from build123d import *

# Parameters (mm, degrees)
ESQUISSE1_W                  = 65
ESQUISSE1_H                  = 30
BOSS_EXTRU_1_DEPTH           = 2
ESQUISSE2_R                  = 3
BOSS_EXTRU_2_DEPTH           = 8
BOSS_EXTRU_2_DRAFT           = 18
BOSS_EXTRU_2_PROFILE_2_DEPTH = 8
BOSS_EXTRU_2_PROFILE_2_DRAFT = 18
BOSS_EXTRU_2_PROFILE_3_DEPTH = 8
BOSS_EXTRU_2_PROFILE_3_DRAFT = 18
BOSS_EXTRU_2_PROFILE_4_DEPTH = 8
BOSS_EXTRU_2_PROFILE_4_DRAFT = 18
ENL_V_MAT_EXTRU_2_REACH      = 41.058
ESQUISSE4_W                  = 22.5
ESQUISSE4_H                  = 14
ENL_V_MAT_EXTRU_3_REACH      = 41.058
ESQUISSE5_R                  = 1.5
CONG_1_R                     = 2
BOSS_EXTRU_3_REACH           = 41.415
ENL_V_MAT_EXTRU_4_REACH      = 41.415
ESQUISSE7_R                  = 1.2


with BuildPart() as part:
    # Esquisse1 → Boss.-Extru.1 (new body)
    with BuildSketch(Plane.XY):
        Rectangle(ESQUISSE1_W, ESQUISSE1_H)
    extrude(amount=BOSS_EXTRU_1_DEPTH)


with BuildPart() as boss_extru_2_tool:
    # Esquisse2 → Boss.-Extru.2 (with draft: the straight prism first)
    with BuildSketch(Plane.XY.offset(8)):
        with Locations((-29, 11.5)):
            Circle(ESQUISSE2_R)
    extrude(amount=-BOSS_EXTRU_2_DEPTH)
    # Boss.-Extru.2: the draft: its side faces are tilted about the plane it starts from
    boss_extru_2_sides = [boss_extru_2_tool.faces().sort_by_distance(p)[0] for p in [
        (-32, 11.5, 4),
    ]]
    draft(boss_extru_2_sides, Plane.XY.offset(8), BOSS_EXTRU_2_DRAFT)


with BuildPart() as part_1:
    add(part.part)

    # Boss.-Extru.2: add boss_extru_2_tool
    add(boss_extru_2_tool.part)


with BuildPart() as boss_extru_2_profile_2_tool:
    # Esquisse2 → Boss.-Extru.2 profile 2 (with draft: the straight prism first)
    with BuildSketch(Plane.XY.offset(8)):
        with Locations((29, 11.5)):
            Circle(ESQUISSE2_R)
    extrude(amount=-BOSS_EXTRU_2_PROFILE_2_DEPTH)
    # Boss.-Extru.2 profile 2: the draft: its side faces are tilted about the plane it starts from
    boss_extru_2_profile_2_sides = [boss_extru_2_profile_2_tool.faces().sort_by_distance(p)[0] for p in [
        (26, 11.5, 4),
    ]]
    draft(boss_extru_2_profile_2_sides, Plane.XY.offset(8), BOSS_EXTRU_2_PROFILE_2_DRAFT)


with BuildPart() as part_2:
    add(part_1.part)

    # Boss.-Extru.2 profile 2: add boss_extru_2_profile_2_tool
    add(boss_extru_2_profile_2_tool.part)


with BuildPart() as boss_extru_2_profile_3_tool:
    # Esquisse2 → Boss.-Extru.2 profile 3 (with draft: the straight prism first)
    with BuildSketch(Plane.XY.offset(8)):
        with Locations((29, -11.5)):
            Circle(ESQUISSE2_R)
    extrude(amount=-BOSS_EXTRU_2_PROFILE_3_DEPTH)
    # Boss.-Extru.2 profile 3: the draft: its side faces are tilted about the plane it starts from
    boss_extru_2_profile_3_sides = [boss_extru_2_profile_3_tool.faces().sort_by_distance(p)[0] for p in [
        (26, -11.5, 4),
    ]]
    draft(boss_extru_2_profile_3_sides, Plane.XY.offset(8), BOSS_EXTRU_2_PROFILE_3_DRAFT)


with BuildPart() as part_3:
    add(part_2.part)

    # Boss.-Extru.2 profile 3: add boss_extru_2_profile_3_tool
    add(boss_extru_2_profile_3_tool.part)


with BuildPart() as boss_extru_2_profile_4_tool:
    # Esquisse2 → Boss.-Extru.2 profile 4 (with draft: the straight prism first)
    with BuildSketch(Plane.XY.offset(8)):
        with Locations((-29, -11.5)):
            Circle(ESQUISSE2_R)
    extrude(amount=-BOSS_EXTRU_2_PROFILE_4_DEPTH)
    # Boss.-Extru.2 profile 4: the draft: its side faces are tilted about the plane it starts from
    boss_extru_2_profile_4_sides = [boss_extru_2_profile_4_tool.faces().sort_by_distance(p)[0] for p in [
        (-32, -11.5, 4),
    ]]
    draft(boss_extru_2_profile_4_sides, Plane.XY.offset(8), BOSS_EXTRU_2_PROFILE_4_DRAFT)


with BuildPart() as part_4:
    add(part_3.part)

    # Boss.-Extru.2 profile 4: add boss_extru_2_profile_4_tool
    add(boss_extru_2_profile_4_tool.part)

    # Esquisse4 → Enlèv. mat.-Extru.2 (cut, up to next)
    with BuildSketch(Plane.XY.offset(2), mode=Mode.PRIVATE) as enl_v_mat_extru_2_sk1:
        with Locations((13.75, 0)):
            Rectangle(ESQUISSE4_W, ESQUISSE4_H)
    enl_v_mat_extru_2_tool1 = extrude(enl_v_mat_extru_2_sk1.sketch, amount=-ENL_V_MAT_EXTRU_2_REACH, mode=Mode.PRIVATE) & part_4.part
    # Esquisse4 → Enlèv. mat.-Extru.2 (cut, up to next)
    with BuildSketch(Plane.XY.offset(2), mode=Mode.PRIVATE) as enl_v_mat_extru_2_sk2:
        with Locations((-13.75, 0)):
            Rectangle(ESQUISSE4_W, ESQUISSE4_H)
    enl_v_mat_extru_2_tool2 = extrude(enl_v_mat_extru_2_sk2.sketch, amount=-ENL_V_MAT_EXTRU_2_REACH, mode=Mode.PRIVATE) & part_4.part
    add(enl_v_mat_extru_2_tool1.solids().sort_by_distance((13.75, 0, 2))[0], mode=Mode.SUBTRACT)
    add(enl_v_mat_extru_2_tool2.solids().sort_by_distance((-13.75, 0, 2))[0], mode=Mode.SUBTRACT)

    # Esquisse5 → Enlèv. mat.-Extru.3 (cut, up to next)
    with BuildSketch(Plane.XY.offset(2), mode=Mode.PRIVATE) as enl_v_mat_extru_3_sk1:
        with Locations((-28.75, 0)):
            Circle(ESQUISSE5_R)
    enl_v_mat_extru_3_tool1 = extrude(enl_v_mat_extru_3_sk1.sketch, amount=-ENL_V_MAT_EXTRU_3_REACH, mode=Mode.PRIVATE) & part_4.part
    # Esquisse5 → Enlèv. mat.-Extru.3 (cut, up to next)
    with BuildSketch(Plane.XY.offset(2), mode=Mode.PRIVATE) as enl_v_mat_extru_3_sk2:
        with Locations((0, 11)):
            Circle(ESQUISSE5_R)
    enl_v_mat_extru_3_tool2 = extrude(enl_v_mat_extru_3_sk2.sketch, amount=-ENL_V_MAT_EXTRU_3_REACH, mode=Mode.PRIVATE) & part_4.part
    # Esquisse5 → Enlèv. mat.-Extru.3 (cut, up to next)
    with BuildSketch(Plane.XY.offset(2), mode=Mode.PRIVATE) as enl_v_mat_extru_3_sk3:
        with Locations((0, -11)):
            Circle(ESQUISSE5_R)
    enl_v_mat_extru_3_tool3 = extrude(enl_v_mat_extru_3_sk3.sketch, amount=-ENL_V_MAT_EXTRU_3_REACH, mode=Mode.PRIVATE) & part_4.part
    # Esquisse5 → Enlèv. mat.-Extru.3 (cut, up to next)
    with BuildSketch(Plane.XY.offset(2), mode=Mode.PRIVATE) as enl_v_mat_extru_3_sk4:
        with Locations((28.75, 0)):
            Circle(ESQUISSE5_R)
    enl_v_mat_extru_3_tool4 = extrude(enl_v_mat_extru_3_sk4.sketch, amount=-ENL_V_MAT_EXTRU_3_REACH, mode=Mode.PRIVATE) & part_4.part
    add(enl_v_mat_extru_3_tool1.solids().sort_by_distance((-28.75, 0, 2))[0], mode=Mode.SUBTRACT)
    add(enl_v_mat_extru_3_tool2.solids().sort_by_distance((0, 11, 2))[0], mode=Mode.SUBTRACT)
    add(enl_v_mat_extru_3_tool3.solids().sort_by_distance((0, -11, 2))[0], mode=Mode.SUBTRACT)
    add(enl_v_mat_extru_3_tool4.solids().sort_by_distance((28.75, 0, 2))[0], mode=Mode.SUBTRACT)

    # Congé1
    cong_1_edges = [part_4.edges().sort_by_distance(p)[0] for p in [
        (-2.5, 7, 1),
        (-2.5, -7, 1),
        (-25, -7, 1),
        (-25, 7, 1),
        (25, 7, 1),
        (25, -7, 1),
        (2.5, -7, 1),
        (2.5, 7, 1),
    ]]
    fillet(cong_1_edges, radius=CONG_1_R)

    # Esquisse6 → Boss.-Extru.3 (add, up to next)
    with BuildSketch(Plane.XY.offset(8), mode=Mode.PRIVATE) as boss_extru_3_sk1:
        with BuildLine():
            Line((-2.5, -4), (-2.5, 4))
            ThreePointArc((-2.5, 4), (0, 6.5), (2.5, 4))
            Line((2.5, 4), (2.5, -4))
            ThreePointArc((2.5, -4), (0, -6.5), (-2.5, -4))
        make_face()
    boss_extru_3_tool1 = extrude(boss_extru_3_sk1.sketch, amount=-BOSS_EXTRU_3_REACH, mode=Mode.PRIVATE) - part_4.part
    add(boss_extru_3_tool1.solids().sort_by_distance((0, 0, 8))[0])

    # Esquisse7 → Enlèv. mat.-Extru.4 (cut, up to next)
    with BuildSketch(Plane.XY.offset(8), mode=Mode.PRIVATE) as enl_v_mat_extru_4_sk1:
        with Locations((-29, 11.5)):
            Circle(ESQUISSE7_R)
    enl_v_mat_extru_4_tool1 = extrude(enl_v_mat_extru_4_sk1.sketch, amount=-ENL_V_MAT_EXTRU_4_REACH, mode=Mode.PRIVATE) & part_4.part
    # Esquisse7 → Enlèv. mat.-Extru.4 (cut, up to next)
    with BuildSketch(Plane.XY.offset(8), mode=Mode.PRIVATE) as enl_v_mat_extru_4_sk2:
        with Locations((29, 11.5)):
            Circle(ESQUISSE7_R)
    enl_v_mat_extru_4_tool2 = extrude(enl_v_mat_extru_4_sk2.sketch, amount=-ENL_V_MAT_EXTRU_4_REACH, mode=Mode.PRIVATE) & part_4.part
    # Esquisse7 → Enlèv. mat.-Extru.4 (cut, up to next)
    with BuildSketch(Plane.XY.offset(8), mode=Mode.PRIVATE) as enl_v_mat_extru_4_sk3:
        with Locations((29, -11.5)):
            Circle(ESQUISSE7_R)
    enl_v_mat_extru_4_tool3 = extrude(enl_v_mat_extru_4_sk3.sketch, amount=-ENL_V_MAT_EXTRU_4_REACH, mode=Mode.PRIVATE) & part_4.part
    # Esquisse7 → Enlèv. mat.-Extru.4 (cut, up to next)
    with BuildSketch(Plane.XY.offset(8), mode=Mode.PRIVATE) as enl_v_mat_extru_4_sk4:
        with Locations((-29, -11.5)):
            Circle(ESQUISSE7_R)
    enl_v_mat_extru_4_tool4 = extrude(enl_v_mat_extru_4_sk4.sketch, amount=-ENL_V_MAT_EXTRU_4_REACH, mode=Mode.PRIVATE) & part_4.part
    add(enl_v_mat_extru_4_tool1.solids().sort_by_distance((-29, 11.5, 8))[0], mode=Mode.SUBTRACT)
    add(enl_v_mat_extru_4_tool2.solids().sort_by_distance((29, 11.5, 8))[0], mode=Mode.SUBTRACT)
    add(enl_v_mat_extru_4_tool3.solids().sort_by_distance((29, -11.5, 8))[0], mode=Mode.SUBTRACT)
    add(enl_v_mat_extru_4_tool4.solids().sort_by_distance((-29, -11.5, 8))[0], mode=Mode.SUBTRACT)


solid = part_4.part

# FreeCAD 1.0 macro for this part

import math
import FreeCAD as App
import Part
import Sketcher

V = App.Vector


def edges_at(feature, points):
    """Names of the edges that pass closest to the given points."""
    edges = feature.Shape.Edges
    near = lambda p: min(range(len(edges)), key=lambda i: edges[i].distToShape(Part.Vertex(*p))[0])
    return sorted({f"Edge{near(p) + 1}" for p in points})


def faces_at(feature, points):
    """Names of the faces that lie closest to the given points."""
    faces = feature.Shape.Faces
    near = lambda p: min(range(len(faces)), key=lambda i: faces[i].distToShape(Part.Vertex(*p))[0])
    return sorted({f"Face{near(p) + 1}" for p in points})


def add_polygon(sketch, points):
    """Adds a closed chain of lines whose ends are joined by coincident constraints."""
    first, n = sketch.GeometryCount, len(points)
    for a, b in zip(points, points[1:] + points[:1]):
        sketch.addGeometry(Part.LineSegment(App.Vector(*a, 0), App.Vector(*b, 0)), False)
    for i in range(n):
        sketch.addConstraint(Sketcher.Constraint("Coincident", first + i, 2, first + (i + 1) % n, 1))

doc = App.newDocument("Part")
params = doc.addObject("Spreadsheet::Sheet", "Params")
for row, (alias, value) in enumerate([
    ("sketch1_width", "65 mm"),
    ("sketch1_height", "30 mm"),
    ("pad1_length", "2 mm"),
    ("sketch2_diameter", "6 mm"),
    ("pad2_length", "8 mm"),
    ("draft_angle", "18 deg"),
    ("sketch3_diameter", "6 mm"),
    ("pad3_length", "8 mm"),
    ("draft2_angle", "18 deg"),
    ("sketch4_diameter", "6 mm"),
    ("pad4_length", "8 mm"),
    ("draft3_angle", "18 deg"),
    ("sketch5_diameter", "6 mm"),
    ("pad5_length", "8 mm"),
    ("draft4_angle", "18 deg"),
    ("sketch6_height", "14 mm"),
    ("sketch6_width", "22.5 mm"),
    ("sketch7_height", "14 mm"),
    ("sketch7_width", "22.5 mm"),
    ("sketch8_diameter", "3 mm"),
    ("sketch9_diameter", "3 mm"),
    ("sketch10_diameter", "3 mm"),
    ("sketch11_diameter", "3 mm"),
    ("fillet_radius", "2 mm"),
    ("sketch12_radius", "2.5 mm"),
    ("sketch12_height", "8 mm"),
    ("sketch13_diameter", "2.4 mm"),
    ("sketch14_diameter", "2.4 mm"),
    ("sketch15_diameter", "2.4 mm"),
    ("sketch16_diameter", "2.4 mm"),
], start=1):
    params.set(f"A{row}", alias)
    params.set(f"B{row}", "=" + value)
    params.setAlias(f"B{row}", alias)

body = doc.addObject("PartDesign::Body", "Body")

sketch1 = body.newObject("Sketcher::SketchObject", "Sketch")
sketch1.AttachmentSupport = (doc.getObject("XY_Plane"), [""])
sketch1.MapMode = "FlatFace"
add_polygon(sketch1, [(-32, 15), (-32, -15), (32, -15), (32, 15)])
sketch1.addConstraint(Sketcher.Constraint("Vertical", 0))
sketch1.addConstraint(Sketcher.Constraint("Horizontal", 1))
sketch1.addConstraint(Sketcher.Constraint("Vertical", 2))
sketch1.addConstraint(Sketcher.Constraint("Horizontal", 3))
sketch1.addConstraint(Sketcher.Constraint("Symmetric", 0, 2, 2, 2, -1, 1))
sketch1.addConstraint(Sketcher.Constraint("DistanceX", 1, 1, 1, 2, 65.0))
sketch1.addConstraint(Sketcher.Constraint("DistanceY", 0, 2, 0, 1, 30.0))
sketch1.setExpression("Constraints[9]", "Params.sketch1_width")
sketch1.setExpression("Constraints[10]", "Params.sketch1_height")
pad1 = body.newObject("PartDesign::Pad", "Pad")
pad1.Profile = sketch1
pad1.setExpression("Length", "Params.pad1_length")
body2 = doc.addObject("PartDesign::Body", "Body001")

sketch2 = body2.newObject("Sketcher::SketchObject", "Sketch001")
sketch2.AttachmentSupport = (doc.getObject("XY_Plane001"), [""])
sketch2.MapMode = "FlatFace"
sketch2.AttachmentOffset = App.Placement(V(0, 0, 8), App.Rotation())
sketch2.addGeometry(Part.Circle(V(-29, 11.5, 0), V(0, 0, 1), 3), False)
sketch2.addConstraint(Sketcher.Constraint("Diameter", 0, 6.0))
sketch2.addConstraint(Sketcher.Constraint("DistanceX", 0, 3, -1, 1, 29.0))
sketch2.addConstraint(Sketcher.Constraint("DistanceY", -1, 1, 0, 3, 11.5))
sketch2.setExpression("Constraints[0]", "Params.sketch2_diameter")
pad2 = body2.newObject("PartDesign::Pad", "Pad001")
pad2.Profile = sketch2
pad2.setExpression("Length", "Params.pad2_length")
pad2.Reversed = True
doc.recompute()

datumplane = body2.newObject("PartDesign::Plane", "DatumPlane")
datumplane.AttachmentSupport = (doc.getObject("XY_Plane001"), [""])
datumplane.MapMode = "FlatFace"
datumplane.AttachmentOffset = App.Placement(V(0, 0, 8), App.Rotation())
draft = body2.newObject("PartDesign::Draft", "Draft")
draft.Base = (pad2, faces_at(pad2, [(-32, 11.5, 4)]))
draft.NeutralPlane = (datumplane, [""])
draft.setExpression("Angle", "Params.draft_angle")
draft.Reversed = False
doc.recompute()

boolean = body.newObject("PartDesign::Boolean", "Boolean")
boolean.Type = "Fuse"
boolean.addObjects([body2])
body3 = doc.addObject("PartDesign::Body", "Body002")

sketch3 = body3.newObject("Sketcher::SketchObject", "Sketch002")
sketch3.AttachmentSupport = (doc.getObject("XY_Plane002"), [""])
sketch3.MapMode = "FlatFace"
sketch3.AttachmentOffset = App.Placement(V(0, 0, 8), App.Rotation())
sketch3.addGeometry(Part.Circle(V(29, 11.5, 0), V(0, 0, 1), 3), False)
sketch3.addConstraint(Sketcher.Constraint("Diameter", 0, 6.0))
sketch3.addConstraint(Sketcher.Constraint("DistanceX", -1, 1, 0, 3, 29.0))
sketch3.addConstraint(Sketcher.Constraint("DistanceY", -1, 1, 0, 3, 11.5))
sketch3.setExpression("Constraints[0]", "Params.sketch3_diameter")
pad3 = body3.newObject("PartDesign::Pad", "Pad002")
pad3.Profile = sketch3
pad3.setExpression("Length", "Params.pad3_length")
pad3.Reversed = True
doc.recompute()

datumplane2 = body3.newObject("PartDesign::Plane", "DatumPlane001")
datumplane2.AttachmentSupport = (doc.getObject("XY_Plane002"), [""])
datumplane2.MapMode = "FlatFace"
datumplane2.AttachmentOffset = App.Placement(V(0, 0, 8), App.Rotation())
draft2 = body3.newObject("PartDesign::Draft", "Draft001")
draft2.Base = (pad3, faces_at(pad3, [(26, 11.5, 4)]))
draft2.NeutralPlane = (datumplane2, [""])
draft2.setExpression("Angle", "Params.draft2_angle")
draft2.Reversed = False
doc.recompute()

boolean2 = body.newObject("PartDesign::Boolean", "Boolean001")
boolean2.Type = "Fuse"
boolean2.addObjects([body3])
body4 = doc.addObject("PartDesign::Body", "Body003")

sketch4 = body4.newObject("Sketcher::SketchObject", "Sketch003")
sketch4.AttachmentSupport = (doc.getObject("XY_Plane003"), [""])
sketch4.MapMode = "FlatFace"
sketch4.AttachmentOffset = App.Placement(V(0, 0, 8), App.Rotation())
sketch4.addGeometry(Part.Circle(V(29, -11.5, 0), V(0, 0, 1), 3), False)
sketch4.addConstraint(Sketcher.Constraint("Diameter", 0, 6.0))
sketch4.addConstraint(Sketcher.Constraint("DistanceX", -1, 1, 0, 3, 29.0))
sketch4.addConstraint(Sketcher.Constraint("DistanceY", 0, 3, -1, 1, 11.5))
sketch4.setExpression("Constraints[0]", "Params.sketch4_diameter")
pad4 = body4.newObject("PartDesign::Pad", "Pad003")
pad4.Profile = sketch4
pad4.setExpression("Length", "Params.pad4_length")
pad4.Reversed = True
doc.recompute()

datumplane3 = body4.newObject("PartDesign::Plane", "DatumPlane002")
datumplane3.AttachmentSupport = (doc.getObject("XY_Plane003"), [""])
datumplane3.MapMode = "FlatFace"
datumplane3.AttachmentOffset = App.Placement(V(0, 0, 8), App.Rotation())
draft3 = body4.newObject("PartDesign::Draft", "Draft002")
draft3.Base = (pad4, faces_at(pad4, [(26, -11.5, 4)]))
draft3.NeutralPlane = (datumplane3, [""])
draft3.setExpression("Angle", "Params.draft3_angle")
draft3.Reversed = False
doc.recompute()

boolean3 = body.newObject("PartDesign::Boolean", "Boolean002")
boolean3.Type = "Fuse"
boolean3.addObjects([body4])
body5 = doc.addObject("PartDesign::Body", "Body004")

sketch5 = body5.newObject("Sketcher::SketchObject", "Sketch004")
sketch5.AttachmentSupport = (doc.getObject("XY_Plane004"), [""])
sketch5.MapMode = "FlatFace"
sketch5.AttachmentOffset = App.Placement(V(0, 0, 8), App.Rotation())
sketch5.addGeometry(Part.Circle(V(-29, -11.5, 0), V(0, 0, 1), 3), False)
sketch5.addConstraint(Sketcher.Constraint("Diameter", 0, 6.0))
sketch5.addConstraint(Sketcher.Constraint("DistanceX", 0, 3, -1, 1, 29.0))
sketch5.addConstraint(Sketcher.Constraint("DistanceY", 0, 3, -1, 1, 11.5))
sketch5.setExpression("Constraints[0]", "Params.sketch5_diameter")
pad5 = body5.newObject("PartDesign::Pad", "Pad004")
pad5.Profile = sketch5
pad5.setExpression("Length", "Params.pad5_length")
pad5.Reversed = True
doc.recompute()

datumplane4 = body5.newObject("PartDesign::Plane", "DatumPlane003")
datumplane4.AttachmentSupport = (doc.getObject("XY_Plane004"), [""])
datumplane4.MapMode = "FlatFace"
datumplane4.AttachmentOffset = App.Placement(V(0, 0, 8), App.Rotation())
draft4 = body5.newObject("PartDesign::Draft", "Draft003")
draft4.Base = (pad5, faces_at(pad5, [(-32, -11.5, 4)]))
draft4.NeutralPlane = (datumplane4, [""])
draft4.setExpression("Angle", "Params.draft4_angle")
draft4.Reversed = False
doc.recompute()

boolean4 = body.newObject("PartDesign::Boolean", "Boolean003")
boolean4.Type = "Fuse"
boolean4.addObjects([body5])

sketch6 = body.newObject("Sketcher::SketchObject", "Sketch005")
sketch6.AttachmentSupport = (doc.getObject("XY_Plane"), [""])
sketch6.MapMode = "FlatFace"
sketch6.AttachmentOffset = App.Placement(V(0, 0, 2), App.Rotation())
add_polygon(sketch6, [(2, 7), (2, -7), (25, -7), (25, 7)])
sketch6.addConstraint(Sketcher.Constraint("Vertical", 0))
sketch6.addConstraint(Sketcher.Constraint("Horizontal", 1))
sketch6.addConstraint(Sketcher.Constraint("Vertical", 2))
sketch6.addConstraint(Sketcher.Constraint("Horizontal", 3))
sketch6.addConstraint(Sketcher.Constraint("DistanceY", 0, 2, 0, 1, 14.0))
sketch6.addConstraint(Sketcher.Constraint("DistanceX", 1, 1, 1, 2, 22.5))
sketch6.addConstraint(Sketcher.Constraint("DistanceY", 0, 2, -1, 1, 7.0))
sketch6.addConstraint(Sketcher.Constraint("DistanceX", -1, 1, 1, 2, 25.0))
sketch6.setExpression("Constraints[8]", "Params.sketch6_height")
sketch6.setExpression("Constraints[9]", "Params.sketch6_width")
pocket1 = body.newObject("PartDesign::Pocket", "Pocket")
pocket1.Profile = sketch6
pocket1.Type = "UpToFirst"

sketch7 = body.newObject("Sketcher::SketchObject", "Sketch006")
sketch7.AttachmentSupport = (doc.getObject("XY_Plane"), [""])
sketch7.MapMode = "FlatFace"
sketch7.AttachmentOffset = App.Placement(V(0, 0, 2), App.Rotation())
add_polygon(sketch7, [(-25, 7), (-25, -7), (-2, -7), (-2, 7)])
sketch7.addConstraint(Sketcher.Constraint("Vertical", 0))
sketch7.addConstraint(Sketcher.Constraint("Horizontal", 1))
sketch7.addConstraint(Sketcher.Constraint("Vertical", 2))
sketch7.addConstraint(Sketcher.Constraint("Horizontal", 3))
sketch7.addConstraint(Sketcher.Constraint("DistanceY", 0, 2, 0, 1, 14.0))
sketch7.addConstraint(Sketcher.Constraint("DistanceX", 1, 1, 1, 2, 22.5))
sketch7.addConstraint(Sketcher.Constraint("DistanceX", 0, 2, -1, 1, 25.0))
sketch7.addConstraint(Sketcher.Constraint("DistanceY", 0, 2, -1, 1, 7.0))
sketch7.setExpression("Constraints[8]", "Params.sketch7_height")
sketch7.setExpression("Constraints[9]", "Params.sketch7_width")
pocket2 = body.newObject("PartDesign::Pocket", "Pocket001")
pocket2.Profile = sketch7
pocket2.Type = "UpToFirst"

sketch8 = body.newObject("Sketcher::SketchObject", "Sketch007")
sketch8.AttachmentSupport = (doc.getObject("XY_Plane"), [""])
sketch8.MapMode = "FlatFace"
sketch8.AttachmentOffset = App.Placement(V(0, 0, 2), App.Rotation())
sketch8.addGeometry(Part.Circle(V(-28.8, 0, 0), V(0, 0, 1), 1.5), False)
sketch8.addConstraint(Sketcher.Constraint("PointOnObject", 0, 3, -1))
sketch8.addConstraint(Sketcher.Constraint("Diameter", 0, 3.0))
sketch8.addConstraint(Sketcher.Constraint("DistanceX", 0, 3, -1, 1, 28.75))
sketch8.setExpression("Constraints[1]", "Params.sketch8_diameter")
pocket3 = body.newObject("PartDesign::Pocket", "Pocket002")
pocket3.Profile = sketch8
pocket3.Type = "UpToFirst"

sketch9 = body.newObject("Sketcher::SketchObject", "Sketch008")
sketch9.AttachmentSupport = (doc.getObject("XY_Plane"), [""])
sketch9.MapMode = "FlatFace"
sketch9.AttachmentOffset = App.Placement(V(0, 0, 2), App.Rotation())
sketch9.addGeometry(Part.Circle(V(0, 11, 0), V(0, 0, 1), 1.5), False)
sketch9.addConstraint(Sketcher.Constraint("PointOnObject", 0, 3, -2))
sketch9.addConstraint(Sketcher.Constraint("Diameter", 0, 3.0))
sketch9.addConstraint(Sketcher.Constraint("DistanceY", -1, 1, 0, 3, 11.0))
sketch9.setExpression("Constraints[1]", "Params.sketch9_diameter")
pocket4 = body.newObject("PartDesign::Pocket", "Pocket003")
pocket4.Profile = sketch9
pocket4.Type = "UpToFirst"

sketch10 = body.newObject("Sketcher::SketchObject", "Sketch009")
sketch10.AttachmentSupport = (doc.getObject("XY_Plane"), [""])
sketch10.MapMode = "FlatFace"
sketch10.AttachmentOffset = App.Placement(V(0, 0, 2), App.Rotation())
sketch10.addGeometry(Part.Circle(V(0, -11, 0), V(0, 0, 1), 1.5), False)
sketch10.addConstraint(Sketcher.Constraint("PointOnObject", 0, 3, -2))
sketch10.addConstraint(Sketcher.Constraint("Diameter", 0, 3.0))
sketch10.addConstraint(Sketcher.Constraint("DistanceY", 0, 3, -1, 1, 11.0))
sketch10.setExpression("Constraints[1]", "Params.sketch10_diameter")
pocket5 = body.newObject("PartDesign::Pocket", "Pocket004")
pocket5.Profile = sketch10
pocket5.Type = "UpToFirst"

sketch11 = body.newObject("Sketcher::SketchObject", "Sketch010")
sketch11.AttachmentSupport = (doc.getObject("XY_Plane"), [""])
sketch11.MapMode = "FlatFace"
sketch11.AttachmentOffset = App.Placement(V(0, 0, 2), App.Rotation())
sketch11.addGeometry(Part.Circle(V(28.8, 0, 0), V(0, 0, 1), 1.5), False)
sketch11.addConstraint(Sketcher.Constraint("PointOnObject", 0, 3, -1))
sketch11.addConstraint(Sketcher.Constraint("Diameter", 0, 3.0))
sketch11.addConstraint(Sketcher.Constraint("DistanceX", -1, 1, 0, 3, 28.75))
sketch11.setExpression("Constraints[1]", "Params.sketch11_diameter")
pocket6 = body.newObject("PartDesign::Pocket", "Pocket005")
pocket6.Profile = sketch11
pocket6.Type = "UpToFirst"
doc.recompute()

fillet = body.newObject("PartDesign::Fillet", "Fillet")
fillet.Base = (pocket6, edges_at(pocket6, [
    (-2.5, 7, 1),
    (-2.5, -7, 1),
    (-25, -7, 1),
    (-25, 7, 1),
    (25, 7, 1),
    (25, -7, 1),
    (2.5, -7, 1),
    (2.5, 7, 1),
]))
fillet.setExpression("Radius", "Params.fillet_radius")

sketch12 = body.newObject("Sketcher::SketchObject", "Sketch011")
sketch12.AttachmentSupport = (doc.getObject("XY_Plane"), [""])
sketch12.MapMode = "FlatFace"
sketch12.AttachmentOffset = App.Placement(V(0, 0, 8), App.Rotation())
sketch12.addGeometry(Part.LineSegment(V(-2.5, 4, 0), V(-2.5, -4, 0)), False)
sketch12.addGeometry(Part.ArcOfCircle(Part.Circle(V(0, -4, 0), V(0, 0, 1), 2.5), math.radians(180), math.radians(360)), False)
sketch12.addGeometry(Part.LineSegment(V(2.5, -4, 0), V(2.5, 4, 0)), False)
sketch12.addGeometry(Part.ArcOfCircle(Part.Circle(V(0, 4, 0), V(0, 0, 1), 2.5), math.radians(0), math.radians(180)), False)
sketch12.addConstraint(Sketcher.Constraint("Tangent", 0, 2, 1, 1))
sketch12.addConstraint(Sketcher.Constraint("Tangent", 1, 2, 2, 1))
sketch12.addConstraint(Sketcher.Constraint("Tangent", 2, 2, 3, 1))
sketch12.addConstraint(Sketcher.Constraint("Tangent", 3, 2, 0, 1))
sketch12.addConstraint(Sketcher.Constraint("Vertical", 0))
sketch12.addConstraint(Sketcher.Constraint("Vertical", 2))
sketch12.addConstraint(Sketcher.Constraint("Symmetric", 1, 3, 3, 3, -1, 1))
sketch12.addConstraint(Sketcher.Constraint("Radius", 1, 2.5))
sketch12.addConstraint(Sketcher.Constraint("DistanceY", 0, 2, 0, 1, 8.0))
sketch12.setExpression("Constraints[7]", "Params.sketch12_radius")
sketch12.setExpression("Constraints[8]", "Params.sketch12_height")
pad6 = body.newObject("PartDesign::Pad", "Pad005")
pad6.Profile = sketch12
pad6.Type = "UpToFirst"
pad6.Reversed = True

sketch13 = body.newObject("Sketcher::SketchObject", "Sketch012")
sketch13.AttachmentSupport = (doc.getObject("XY_Plane"), [""])
sketch13.MapMode = "FlatFace"
sketch13.AttachmentOffset = App.Placement(V(0, 0, 8), App.Rotation())
sketch13.addGeometry(Part.Circle(V(-29, 11.5, 0), V(0, 0, 1), 1.2), False)
sketch13.addConstraint(Sketcher.Constraint("Diameter", 0, 2.4))
sketch13.addConstraint(Sketcher.Constraint("DistanceX", 0, 3, -1, 1, 29.0))
sketch13.addConstraint(Sketcher.Constraint("DistanceY", -1, 1, 0, 3, 11.5))
sketch13.setExpression("Constraints[0]", "Params.sketch13_diameter")
pocket7 = body.newObject("PartDesign::Pocket", "Pocket006")
pocket7.Profile = sketch13
pocket7.Type = "UpToFirst"

sketch14 = body.newObject("Sketcher::SketchObject", "Sketch013")
sketch14.AttachmentSupport = (doc.getObject("XY_Plane"), [""])
sketch14.MapMode = "FlatFace"
sketch14.AttachmentOffset = App.Placement(V(0, 0, 8), App.Rotation())
sketch14.addGeometry(Part.Circle(V(29, 11.5, 0), V(0, 0, 1), 1.2), False)
sketch14.addConstraint(Sketcher.Constraint("Diameter", 0, 2.4))
sketch14.addConstraint(Sketcher.Constraint("DistanceX", -1, 1, 0, 3, 29.0))
sketch14.addConstraint(Sketcher.Constraint("DistanceY", -1, 1, 0, 3, 11.5))
sketch14.setExpression("Constraints[0]", "Params.sketch14_diameter")
pocket8 = body.newObject("PartDesign::Pocket", "Pocket007")
pocket8.Profile = sketch14
pocket8.Type = "UpToFirst"

sketch15 = body.newObject("Sketcher::SketchObject", "Sketch014")
sketch15.AttachmentSupport = (doc.getObject("XY_Plane"), [""])
sketch15.MapMode = "FlatFace"
sketch15.AttachmentOffset = App.Placement(V(0, 0, 8), App.Rotation())
sketch15.addGeometry(Part.Circle(V(29, -11.5, 0), V(0, 0, 1), 1.2), False)
sketch15.addConstraint(Sketcher.Constraint("Diameter", 0, 2.4))
sketch15.addConstraint(Sketcher.Constraint("DistanceX", -1, 1, 0, 3, 29.0))
sketch15.addConstraint(Sketcher.Constraint("DistanceY", 0, 3, -1, 1, 11.5))
sketch15.setExpression("Constraints[0]", "Params.sketch15_diameter")
pocket9 = body.newObject("PartDesign::Pocket", "Pocket008")
pocket9.Profile = sketch15
pocket9.Type = "UpToFirst"

sketch16 = body.newObject("Sketcher::SketchObject", "Sketch015")
sketch16.AttachmentSupport = (doc.getObject("XY_Plane"), [""])
sketch16.MapMode = "FlatFace"
sketch16.AttachmentOffset = App.Placement(V(0, 0, 8), App.Rotation())
sketch16.addGeometry(Part.Circle(V(-29, -11.5, 0), V(0, 0, 1), 1.2), False)
sketch16.addConstraint(Sketcher.Constraint("Diameter", 0, 2.4))
sketch16.addConstraint(Sketcher.Constraint("DistanceX", 0, 3, -1, 1, 29.0))
sketch16.addConstraint(Sketcher.Constraint("DistanceY", 0, 3, -1, 1, 11.5))
sketch16.setExpression("Constraints[0]", "Params.sketch16_diameter")
pocket10 = body.newObject("PartDesign::Pocket", "Pocket009")
pocket10.Profile = sketch16
pocket10.Type = "UpToFirst"

doc.recompute()
